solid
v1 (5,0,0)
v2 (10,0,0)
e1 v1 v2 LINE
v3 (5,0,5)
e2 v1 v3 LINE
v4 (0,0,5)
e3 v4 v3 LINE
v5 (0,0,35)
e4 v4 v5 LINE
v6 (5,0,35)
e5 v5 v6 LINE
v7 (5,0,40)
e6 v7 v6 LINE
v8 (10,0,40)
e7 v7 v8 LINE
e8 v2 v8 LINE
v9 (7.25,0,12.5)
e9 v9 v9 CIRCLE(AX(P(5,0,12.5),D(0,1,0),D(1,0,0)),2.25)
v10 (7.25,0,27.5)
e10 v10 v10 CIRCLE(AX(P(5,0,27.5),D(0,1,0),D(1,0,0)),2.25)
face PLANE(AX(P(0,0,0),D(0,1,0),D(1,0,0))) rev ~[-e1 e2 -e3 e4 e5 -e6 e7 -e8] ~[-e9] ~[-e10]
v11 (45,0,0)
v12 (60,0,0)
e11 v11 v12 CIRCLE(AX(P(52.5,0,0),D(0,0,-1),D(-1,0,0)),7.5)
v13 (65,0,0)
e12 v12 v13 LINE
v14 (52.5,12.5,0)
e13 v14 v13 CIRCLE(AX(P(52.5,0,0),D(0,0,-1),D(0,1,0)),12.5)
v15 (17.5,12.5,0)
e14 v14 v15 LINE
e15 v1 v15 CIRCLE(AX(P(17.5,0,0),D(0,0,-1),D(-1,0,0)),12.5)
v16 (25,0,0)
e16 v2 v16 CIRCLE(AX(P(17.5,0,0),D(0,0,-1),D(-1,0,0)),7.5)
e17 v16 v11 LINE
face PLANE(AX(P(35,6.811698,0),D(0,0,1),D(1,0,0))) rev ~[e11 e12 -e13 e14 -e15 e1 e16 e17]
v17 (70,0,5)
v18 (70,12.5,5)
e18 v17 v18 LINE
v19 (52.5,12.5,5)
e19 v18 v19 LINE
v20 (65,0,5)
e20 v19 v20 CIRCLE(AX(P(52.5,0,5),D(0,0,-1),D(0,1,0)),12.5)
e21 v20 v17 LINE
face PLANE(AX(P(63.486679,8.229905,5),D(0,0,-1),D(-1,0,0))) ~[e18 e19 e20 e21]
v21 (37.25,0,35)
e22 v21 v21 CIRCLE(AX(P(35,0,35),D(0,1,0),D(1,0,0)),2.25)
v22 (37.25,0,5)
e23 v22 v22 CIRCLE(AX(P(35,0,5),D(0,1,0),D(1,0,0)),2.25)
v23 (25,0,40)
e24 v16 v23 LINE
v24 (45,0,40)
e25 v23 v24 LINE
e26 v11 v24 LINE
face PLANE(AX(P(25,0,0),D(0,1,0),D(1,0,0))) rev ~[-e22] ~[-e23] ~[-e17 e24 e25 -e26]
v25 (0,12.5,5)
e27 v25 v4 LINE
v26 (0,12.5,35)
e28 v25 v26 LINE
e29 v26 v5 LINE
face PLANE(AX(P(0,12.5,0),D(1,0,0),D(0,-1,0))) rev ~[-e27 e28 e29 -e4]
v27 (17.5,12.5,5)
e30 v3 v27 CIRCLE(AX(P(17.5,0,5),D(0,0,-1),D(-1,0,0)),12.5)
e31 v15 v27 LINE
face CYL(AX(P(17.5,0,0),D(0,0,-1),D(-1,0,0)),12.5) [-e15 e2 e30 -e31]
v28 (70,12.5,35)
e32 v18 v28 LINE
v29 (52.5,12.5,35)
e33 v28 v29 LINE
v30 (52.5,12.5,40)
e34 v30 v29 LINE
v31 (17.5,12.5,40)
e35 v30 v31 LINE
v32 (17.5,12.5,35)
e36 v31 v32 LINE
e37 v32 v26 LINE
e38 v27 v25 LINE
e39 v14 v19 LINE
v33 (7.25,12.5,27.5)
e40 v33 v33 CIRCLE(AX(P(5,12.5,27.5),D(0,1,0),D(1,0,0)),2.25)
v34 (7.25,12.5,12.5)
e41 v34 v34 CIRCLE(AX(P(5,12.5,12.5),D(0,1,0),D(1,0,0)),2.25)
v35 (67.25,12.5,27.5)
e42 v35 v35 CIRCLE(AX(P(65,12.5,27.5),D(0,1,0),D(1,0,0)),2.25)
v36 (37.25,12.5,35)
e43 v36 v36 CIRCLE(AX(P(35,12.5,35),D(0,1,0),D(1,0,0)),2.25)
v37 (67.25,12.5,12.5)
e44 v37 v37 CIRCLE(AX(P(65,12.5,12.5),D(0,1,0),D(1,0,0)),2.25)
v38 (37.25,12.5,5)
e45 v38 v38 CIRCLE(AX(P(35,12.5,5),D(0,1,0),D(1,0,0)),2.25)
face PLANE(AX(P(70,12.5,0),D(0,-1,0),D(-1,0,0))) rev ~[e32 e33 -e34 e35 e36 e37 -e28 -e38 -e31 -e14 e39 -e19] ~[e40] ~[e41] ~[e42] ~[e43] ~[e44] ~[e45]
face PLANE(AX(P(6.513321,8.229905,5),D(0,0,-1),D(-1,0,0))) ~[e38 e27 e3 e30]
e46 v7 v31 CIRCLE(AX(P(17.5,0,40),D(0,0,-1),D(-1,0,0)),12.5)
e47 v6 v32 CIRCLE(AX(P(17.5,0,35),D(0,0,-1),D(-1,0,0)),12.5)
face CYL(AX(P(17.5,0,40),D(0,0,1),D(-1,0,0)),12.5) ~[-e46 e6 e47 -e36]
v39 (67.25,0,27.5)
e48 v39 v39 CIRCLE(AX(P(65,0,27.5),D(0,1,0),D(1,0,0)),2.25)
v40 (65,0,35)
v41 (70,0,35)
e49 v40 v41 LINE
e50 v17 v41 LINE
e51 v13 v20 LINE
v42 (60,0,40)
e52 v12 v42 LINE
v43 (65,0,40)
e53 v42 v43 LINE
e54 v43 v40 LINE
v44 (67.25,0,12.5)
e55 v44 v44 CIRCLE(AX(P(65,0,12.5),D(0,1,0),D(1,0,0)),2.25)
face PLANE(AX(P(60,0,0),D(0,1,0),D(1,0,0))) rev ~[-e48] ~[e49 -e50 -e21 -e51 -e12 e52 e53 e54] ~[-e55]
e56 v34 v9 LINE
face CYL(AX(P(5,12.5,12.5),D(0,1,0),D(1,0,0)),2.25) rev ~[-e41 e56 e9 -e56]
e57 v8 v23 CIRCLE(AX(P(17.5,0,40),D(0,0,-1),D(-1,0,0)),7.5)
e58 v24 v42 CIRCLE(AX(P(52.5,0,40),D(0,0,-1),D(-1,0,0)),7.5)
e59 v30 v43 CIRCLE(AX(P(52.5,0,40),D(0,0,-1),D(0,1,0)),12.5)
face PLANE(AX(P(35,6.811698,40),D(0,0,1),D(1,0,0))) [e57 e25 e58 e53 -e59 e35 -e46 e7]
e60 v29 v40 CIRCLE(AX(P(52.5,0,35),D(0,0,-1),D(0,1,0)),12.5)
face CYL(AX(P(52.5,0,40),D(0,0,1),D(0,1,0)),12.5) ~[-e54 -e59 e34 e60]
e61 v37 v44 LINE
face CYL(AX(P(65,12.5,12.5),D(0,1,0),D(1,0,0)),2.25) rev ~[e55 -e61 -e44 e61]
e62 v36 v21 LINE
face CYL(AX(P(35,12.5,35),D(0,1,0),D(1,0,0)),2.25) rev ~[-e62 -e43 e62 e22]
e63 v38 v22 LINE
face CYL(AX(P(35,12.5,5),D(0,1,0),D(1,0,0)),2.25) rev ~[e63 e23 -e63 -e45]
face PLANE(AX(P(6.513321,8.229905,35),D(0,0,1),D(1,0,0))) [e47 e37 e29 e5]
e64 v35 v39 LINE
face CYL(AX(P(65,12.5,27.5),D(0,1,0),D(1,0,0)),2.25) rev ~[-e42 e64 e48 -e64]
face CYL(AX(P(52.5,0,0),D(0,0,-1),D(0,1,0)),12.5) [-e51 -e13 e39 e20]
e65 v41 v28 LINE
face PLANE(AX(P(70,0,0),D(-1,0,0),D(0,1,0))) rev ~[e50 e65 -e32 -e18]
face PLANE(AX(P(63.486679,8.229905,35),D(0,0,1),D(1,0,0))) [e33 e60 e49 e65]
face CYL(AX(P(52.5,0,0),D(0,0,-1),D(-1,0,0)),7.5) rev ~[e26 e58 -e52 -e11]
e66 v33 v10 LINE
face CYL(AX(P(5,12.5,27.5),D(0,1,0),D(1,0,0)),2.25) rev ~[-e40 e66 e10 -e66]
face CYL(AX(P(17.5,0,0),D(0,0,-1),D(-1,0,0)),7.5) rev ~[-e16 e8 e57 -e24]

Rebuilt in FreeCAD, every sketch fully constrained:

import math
import FreeCAD as App
import Part
import Sketcher
from FreeCAD import Vector

doc = App.newDocument("Part")
body = doc.addObject("PartDesign::Body", "Body")

# Sketch on XY plane
sketch1 = body.newObject("Sketcher::SketchObject", "Sketch")
sketch1.AttachmentSupport = (doc.getObject("XY_Plane"), [""])
sketch1.MapMode = "FlatFace"
sketch1.addGeometry(Part.LineSegment(Vector(0, 0, 0), Vector(10, 0, 0)), False)
sketch1.addGeometry(Part.ArcOfCircle(Part.Circle(Vector(18, 0, 0), Vector(0, 0, 1), 8), math.radians(0), math.radians(180)), False)
sketch1.addGeometry(Part.LineSegment(Vector(25, 0, 0), Vector(45, 0, 0)), False)
sketch1.addGeometry(Part.ArcOfCircle(Part.Circle(Vector(52, 0, 0), Vector(0, 0, 1), 8), math.radians(0), math.radians(180)), False)
sketch1.addGeometry(Part.LineSegment(Vector(60, 0, 0), Vector(70, 0, 0)), False)
sketch1.addGeometry(Part.LineSegment(Vector(70, 0, 0), Vector(70, 12, 0)), False)
sketch1.addGeometry(Part.LineSegment(Vector(70, 12, 0), Vector(0, 12, 0)), False)
sketch1.addGeometry(Part.LineSegment(Vector(0, 12, 0), Vector(0, 0, 0)), False)
sketch1.addConstraint(Sketcher.Constraint("Coincident", 0, 2, 1, 2))
sketch1.addConstraint(Sketcher.Constraint("Coincident", 1, 1, 2, 1))
sketch1.addConstraint(Sketcher.Constraint("Coincident", 2, 2, 3, 2))
sketch1.addConstraint(Sketcher.Constraint("Coincident", 3, 1, 4, 1))
sketch1.addConstraint(Sketcher.Constraint("Coincident", 4, 2, 5, 1))
sketch1.addConstraint(Sketcher.Constraint("Coincident", 5, 2, 6, 1))
sketch1.addConstraint(Sketcher.Constraint("Coincident", 6, 2, 7, 1))
sketch1.addConstraint(Sketcher.Constraint("Coincident", 7, 2, 0, 1))
sketch1.addConstraint(Sketcher.Constraint("Horizontal", 0))
sketch1.addConstraint(Sketcher.Constraint("Horizontal", 2))
sketch1.addConstraint(Sketcher.Constraint("Horizontal", 4))
sketch1.addConstraint(Sketcher.Constraint("Vertical", 5))
sketch1.addConstraint(Sketcher.Constraint("Horizontal", 6))
sketch1.addConstraint(Sketcher.Constraint("Vertical", 7))
sketch1.addConstraint(Sketcher.Constraint("Coincident", 7, 2, -1, 1))
sketch1.addConstraint(Sketcher.Constraint("Equal", 1, 3))
sketch1.addConstraint(Sketcher.Constraint("PointOnObject", 1, 3, -1))
sketch1.addConstraint(Sketcher.Constraint("PointOnObject", 3, 3, -1))
sketch1.addConstraint(Sketcher.Constraint("PointOnObject", 1, 1, -1))
sketch1.addConstraint(Sketcher.Constraint("PointOnObject", 3, 1, -1))
sketch1.addConstraint(Sketcher.Constraint("Equal", 0, 4))
sketch1.addConstraint(Sketcher.Constraint("Radius", 1, 7.5))
sketch1.addConstraint(Sketcher.Constraint("DistanceX", 0, 1, 0, 2, 10.0))
sketch1.addConstraint(Sketcher.Constraint("DistanceX", 2, 1, 2, 2, 20.0))
sketch1.addConstraint(Sketcher.Constraint("DistanceY", 5, 1, 5, 2, 12.5))
pad1 = body.newObject("PartDesign::Pad", "Pad")
pad1.Profile = sketch1
pad1.Length = 40

# Sketch on XY plane
sketch2 = body.newObject("Sketcher::SketchObject", "Sketch001")
sketch2.AttachmentSupport = (doc.getObject("XY_Plane"), [""])
sketch2.MapMode = "FlatFace"
sketch2.AttachmentOffset = App.Placement(Vector(0, 0, 40), App.Rotation())
sketch2.addGeometry(Part.LineSegment(Vector(0, 0, 0), Vector(5, 0, 0)), False)
sketch2.addGeometry(Part.ArcOfCircle(Part.Circle(Vector(17, 0, 0), Vector(0, 0, 1), 12), math.radians(90), math.radians(180)), False)
sketch2.addGeometry(Part.LineSegment(Vector(18, 12, 0), Vector(0, 12, 0)), False)
sketch2.addGeometry(Part.LineSegment(Vector(0, 12, 0), Vector(0, 0, 0)), False)
sketch2.addGeometry(Part.LineSegment(Vector(65, 0, 0), Vector(70, 0, 0)), False)
sketch2.addGeometry(Part.LineSegment(Vector(70, 0, 0), Vector(70, 12, 0)), False)
sketch2.addGeometry(Part.LineSegment(Vector(70, 12, 0), Vector(52, 12, 0)), False)
sketch2.addGeometry(Part.ArcOfCircle(Part.Circle(Vector(53, 0, 0), Vector(0, 0, 1), 12), math.radians(0), math.radians(90)), False)
sketch2.addConstraint(Sketcher.Constraint("Coincident", 0, 2, 1, 2))
sketch2.addConstraint(Sketcher.Constraint("Tangent", 1, 1, 2, 1))
sketch2.addConstraint(Sketcher.Constraint("Coincident", 2, 2, 3, 1))
sketch2.addConstraint(Sketcher.Constraint("Coincident", 3, 2, 0, 1))
sketch2.addConstraint(Sketcher.Constraint("Coincident", 4, 2, 5, 1))
sketch2.addConstraint(Sketcher.Constraint("Coincident", 5, 2, 6, 1))
sketch2.addConstraint(Sketcher.Constraint("Tangent", 6, 2, 7, 2))
sketch2.addConstraint(Sketcher.Constraint("Coincident", 7, 1, 4, 1))
sketch2.addConstraint(Sketcher.Constraint("Horizontal", 0))
sketch2.addConstraint(Sketcher.Constraint("Horizontal", 2))
sketch2.addConstraint(Sketcher.Constraint("Vertical", 3))
sketch2.addConstraint(Sketcher.Constraint("Horizontal", 4))
sketch2.addConstraint(Sketcher.Constraint("Vertical", 5))
sketch2.addConstraint(Sketcher.Constraint("Horizontal", 6))
sketch2.addConstraint(Sketcher.Constraint("Coincident", 3, 2, -1, 1))
sketch2.addConstraint(Sketcher.Constraint("Equal", 1, 7))
sketch2.addConstraint(Sketcher.Constraint("PointOnObject", 1, 3, -1))
sketch2.addConstraint(Sketcher.Constraint("PointOnObject", 7, 3, -1))
sketch2.addConstraint(Sketcher.Constraint("PointOnObject", 4, 2, -1))
sketch2.addConstraint(Sketcher.Constraint("Equal", 0, 4))
sketch2.addConstraint(Sketcher.Constraint("Radius", 1, 12.5))
sketch2.addConstraint(Sketcher.Constraint("DistanceX", 0, 1, 0, 2, 5.0))
sketch2.addConstraint(Sketcher.Constraint("DistanceX", -1, 1, 4, 2, 70.0))
pocket1 = body.newObject("PartDesign::Pocket", "Pocket")
pocket1.Profile = sketch2
pocket1.Length = 5
doc.recompute()

datumplane = body.newObject("PartDesign::Plane", "DatumPlane")
datumplane.AttachmentSupport = (doc.getObject("XY_Plane"), [""])
datumplane.MapMode = "FlatFace"
datumplane.AttachmentOffset = App.Placement(Vector(0, 0, 20), App.Rotation())
mirrored = body.newObject("PartDesign::Mirrored", "Mirrored")
mirrored.Originals = [pocket1]
mirrored.MirrorPlane = (datumplane, [""])
body.Tip = mirrored

# Sketch on XZ plane
sketch3 = body.newObject("Sketcher::SketchObject", "Sketch002")
sketch3.AttachmentSupport = (doc.getObject("XZ_Plane"), [""])
sketch3.MapMode = "FlatFace"
sketch3.AttachmentOffset = App.Placement(Vector(0, 0, -12.5), App.Rotation())
sketch3.addGeometry(Part.Circle(Vector(35, 5, 0), Vector(0, 0, 1), 2.2), False)
sketch3.addConstraint(Sketcher.Constraint("Diameter", 0, 4.5))
sketch3.addConstraint(Sketcher.Constraint("DistanceX", -1, 1, 0, 3, 35.0))
sketch3.addConstraint(Sketcher.Constraint("DistanceY", -1, 1, 0, 3, 5.0))
pocket2 = body.newObject("PartDesign::Pocket", "Pocket001")
pocket2.Profile = sketch3
pocket2.Type = "UpToFirst"
pocket2.Reversed = True

# Sketch on XZ plane
sketch4 = body.newObject("Sketcher::SketchObject", "Sketch003")
sketch4.AttachmentSupport = (doc.getObject("XZ_Plane"), [""])
sketch4.MapMode = "FlatFace"
sketch4.AttachmentOffset = App.Placement(Vector(0, 0, -12.5), App.Rotation())
sketch4.addGeometry(Part.Circle(Vector(35, 35, 0), Vector(0, 0, 1), 2.2), False)
sketch4.addConstraint(Sketcher.Constraint("Diameter", 0, 4.5))
sketch4.addConstraint(Sketcher.Constraint("DistanceX", -1, 1, 0, 3, 35.0))
sketch4.addConstraint(Sketcher.Constraint("DistanceY", -1, 1, 0, 3, 35.0))
pocket3 = body.newObject("PartDesign::Pocket", "Pocket002")
pocket3.Profile = sketch4
pocket3.Type = "UpToFirst"
pocket3.Reversed = True

# Sketch on XZ plane
sketch5 = body.newObject("Sketcher::SketchObject", "Sketch004")
sketch5.AttachmentSupport = (doc.getObject("XZ_Plane"), [""])
sketch5.MapMode = "FlatFace"
sketch5.AttachmentOffset = App.Placement(Vector(0, 0, -12.5), App.Rotation())
sketch5.addGeometry(Part.Circle(Vector(5, 12.5, 0), Vector(0, 0, 1), 2.2), False)
sketch5.addConstraint(Sketcher.Constraint("Diameter", 0, 4.5))
sketch5.addConstraint(Sketcher.Constraint("DistanceX", -1, 1, 0, 3, 5.0))
sketch5.addConstraint(Sketcher.Constraint("DistanceY", -1, 1, 0, 3, 12.5))
pocket4 = body.newObject("PartDesign::Pocket", "Pocket003")
pocket4.Profile = sketch5
pocket4.Type = "UpToFirst"
pocket4.Reversed = True

# Sketch on XZ plane
sketch6 = body.newObject("Sketcher::SketchObject", "Sketch005")
sketch6.AttachmentSupport = (doc.getObject("XZ_Plane"), [""])
sketch6.MapMode = "FlatFace"
sketch6.AttachmentOffset = App.Placement(Vector(0, 0, -12.5), App.Rotation())
sketch6.addGeometry(Part.Circle(Vector(5, 27.5, 0), Vector(0, 0, 1), 2.2), False)
sketch6.addConstraint(Sketcher.Constraint("Diameter", 0, 4.5))
sketch6.addConstraint(Sketcher.Constraint("DistanceX", -1, 1, 0, 3, 5.0))
sketch6.addConstraint(Sketcher.Constraint("DistanceY", -1, 1, 0, 3, 27.5))
pocket5 = body.newObject("PartDesign::Pocket", "Pocket004")
pocket5.Profile = sketch6
pocket5.Type = "UpToFirst"
pocket5.Reversed = True

# Sketch on XZ plane
sketch7 = body.newObject("Sketcher::SketchObject", "Sketch006")
sketch7.AttachmentSupport = (doc.getObject("XZ_Plane"), [""])
sketch7.MapMode = "FlatFace"
sketch7.AttachmentOffset = App.Placement(Vector(0, 0, -12.5), App.Rotation())
sketch7.addGeometry(Part.Circle(Vector(65, 12.5, 0), Vector(0, 0, 1), 2.2), False)
sketch7.addConstraint(Sketcher.Constraint("Diameter", 0, 4.5))
sketch7.addConstraint(Sketcher.Constraint("DistanceX", -1, 1, 0, 3, 65.0))
sketch7.addConstraint(Sketcher.Constraint("DistanceY", -1, 1, 0, 3, 12.5))
pocket6 = body.newObject("PartDesign::Pocket", "Pocket005")
pocket6.Profile = sketch7
pocket6.Type = "UpToFirst"
pocket6.Reversed = True

# Sketch on XZ plane
sketch8 = body.newObject("Sketcher::SketchObject", "Sketch007")
sketch8.AttachmentSupport = (doc.getObject("XZ_Plane"), [""])
sketch8.MapMode = "FlatFace"
sketch8.AttachmentOffset = App.Placement(Vector(0, 0, -12.5), App.Rotation())
sketch8.addGeometry(Part.Circle(Vector(65, 27.5, 0), Vector(0, 0, 1), 2.2), False)
sketch8.addConstraint(Sketcher.Constraint("Diameter", 0, 4.5))
sketch8.addConstraint(Sketcher.Constraint("DistanceX", -1, 1, 0, 3, 65.0))
sketch8.addConstraint(Sketcher.Constraint("DistanceY", -1, 1, 0, 3, 27.5))
pocket7 = body.newObject("PartDesign::Pocket", "Pocket006")
pocket7.Profile = sketch8
pocket7.Type = "UpToFirst"
pocket7.Reversed = True

doc.recompute()
